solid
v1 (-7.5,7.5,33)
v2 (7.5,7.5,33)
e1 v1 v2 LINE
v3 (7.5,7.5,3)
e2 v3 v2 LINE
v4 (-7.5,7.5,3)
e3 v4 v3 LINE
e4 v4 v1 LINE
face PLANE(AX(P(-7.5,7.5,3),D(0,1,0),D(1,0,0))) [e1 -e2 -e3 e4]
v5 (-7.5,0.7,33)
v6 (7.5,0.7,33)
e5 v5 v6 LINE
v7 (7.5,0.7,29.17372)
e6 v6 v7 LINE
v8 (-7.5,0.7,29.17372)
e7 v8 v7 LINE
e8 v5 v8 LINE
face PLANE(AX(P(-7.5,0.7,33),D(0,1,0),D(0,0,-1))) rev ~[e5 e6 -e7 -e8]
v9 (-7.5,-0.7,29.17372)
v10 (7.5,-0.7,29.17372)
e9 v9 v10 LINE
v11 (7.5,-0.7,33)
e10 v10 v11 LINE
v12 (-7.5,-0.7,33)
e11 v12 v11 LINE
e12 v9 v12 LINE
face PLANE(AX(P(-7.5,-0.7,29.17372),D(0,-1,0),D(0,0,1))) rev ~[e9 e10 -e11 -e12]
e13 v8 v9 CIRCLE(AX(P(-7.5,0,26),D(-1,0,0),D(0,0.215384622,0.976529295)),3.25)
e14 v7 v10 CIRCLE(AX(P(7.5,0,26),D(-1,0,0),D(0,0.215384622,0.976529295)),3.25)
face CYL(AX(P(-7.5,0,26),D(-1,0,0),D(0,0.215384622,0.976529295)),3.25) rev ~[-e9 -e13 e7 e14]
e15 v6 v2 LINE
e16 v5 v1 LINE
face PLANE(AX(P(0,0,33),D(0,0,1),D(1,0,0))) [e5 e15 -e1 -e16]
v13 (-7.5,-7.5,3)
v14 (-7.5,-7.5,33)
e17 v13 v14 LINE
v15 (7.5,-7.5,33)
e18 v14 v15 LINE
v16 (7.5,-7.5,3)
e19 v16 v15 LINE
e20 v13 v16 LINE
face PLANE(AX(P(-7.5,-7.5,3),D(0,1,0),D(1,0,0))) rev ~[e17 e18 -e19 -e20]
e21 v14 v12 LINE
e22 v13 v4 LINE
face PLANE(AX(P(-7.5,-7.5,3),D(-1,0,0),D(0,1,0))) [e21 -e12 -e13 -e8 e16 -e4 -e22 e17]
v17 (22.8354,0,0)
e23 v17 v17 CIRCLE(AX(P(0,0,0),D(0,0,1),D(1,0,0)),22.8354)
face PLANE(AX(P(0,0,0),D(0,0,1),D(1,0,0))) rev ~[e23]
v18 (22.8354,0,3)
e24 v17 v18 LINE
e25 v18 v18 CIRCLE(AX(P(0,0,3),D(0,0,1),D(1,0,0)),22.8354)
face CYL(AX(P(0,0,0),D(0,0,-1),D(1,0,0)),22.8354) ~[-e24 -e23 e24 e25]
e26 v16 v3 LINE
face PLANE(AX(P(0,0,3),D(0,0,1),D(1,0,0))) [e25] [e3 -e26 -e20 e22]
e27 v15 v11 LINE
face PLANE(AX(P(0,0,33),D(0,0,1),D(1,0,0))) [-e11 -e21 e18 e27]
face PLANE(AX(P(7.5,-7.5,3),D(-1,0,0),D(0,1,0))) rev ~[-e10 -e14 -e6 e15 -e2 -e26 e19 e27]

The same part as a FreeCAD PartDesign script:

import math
import FreeCAD as App
import Part
import Sketcher
Q = App.Units.Quantity

doc = App.newDocument("Part")
params = doc.addObject("Spreadsheet::Sheet", "Params")
for row, (alias, value) in enumerate([
    ("pad1_length", "3 mm"),
    ("sketch2_width", "15 mm"),
    ("pad2_length", "30 mm"),
    ("sketch3_radius", "3.25 mm"),
    ("sketch3_width", "1.4 mm"),
    ("pocket1_length", "25 mm"),
], start=1):
    params.set(f"A{row}", alias)
    params.set(f"B{row}", "=" + value)
    params.setAlias(f"B{row}", alias)

body = doc.addObject("PartDesign::Body", "Body")

# Sketch on XY plane
sketch1 = body.newObject("Sketcher::SketchObject", "Sketch")
sketch1.AttachmentSupport = (doc.getObject("XY_Plane"), [""])
sketch1.MapMode = "FlatFace"
sketch1.addGeometry(Part.Circle(App.Vector(0, 0, 0), App.Vector(0, 0, 1), 23), False)
sketch1.addConstraint([
    Sketcher.Constraint("Coincident", 0, 3, -1, 1),
    Sketcher.Constraint("Diameter", 0, Q("45.6708 mm")),
])
pad1 = body.newObject("PartDesign::Pad", "Pad")
pad1.Profile = sketch1
pad1.setExpression("Length", "Params.pad1_length")

# Sketch on XY plane
sketch2 = body.newObject("Sketcher::SketchObject", "Sketch001")
sketch2.AttachmentSupport = (doc.getObject("XY_Plane"), [""])
sketch2.MapMode = "FlatFace"
sketch2.AttachmentOffset = App.Placement(App.Vector(0, 0, 3), App.Rotation())
sketch2.addGeometry([
    Part.LineSegment(App.Vector(-8, 8, 0), App.Vector(-8, -8, 0)),
    Part.LineSegment(App.Vector(-8, -8, 0), App.Vector(8, -8, 0)),
    Part.LineSegment(App.Vector(8, -8, 0), App.Vector(8, 8, 0)),
    Part.LineSegment(App.Vector(8, 8, 0), App.Vector(-8, 8, 0)),
], False)
sketch2.addConstraint([
    Sketcher.Constraint("Coincident", 0, 2, 1, 1),
    Sketcher.Constraint("Coincident", 1, 2, 2, 1),
    Sketcher.Constraint("Coincident", 2, 2, 3, 1),
    Sketcher.Constraint("Coincident", 3, 2, 0, 1),
    Sketcher.Constraint("Vertical", 0),
    Sketcher.Constraint("Horizontal", 1),
    Sketcher.Constraint("Vertical", 2),
    Sketcher.Constraint("Horizontal", 3),
    Sketcher.Constraint("Symmetric", 0, 2, 2, 2, -1, 1),
    Sketcher.Constraint("Equal", 3, 0),
    Sketcher.Constraint("DistanceX", 1, 1, 1, 2, Q("15 mm")),
])
sketch2.setExpression("Constraints[10]", "Params.sketch2_width")
pad2 = body.newObject("PartDesign::Pad", "Pad001")
pad2.Profile = sketch2
pad2.setExpression("Length", "Params.pad2_length")

# Sketch on YZ plane
sketch3 = body.newObject("Sketcher::SketchObject", "Sketch002")
sketch3.AttachmentSupport = (doc.getObject("YZ_Plane"), [""])
sketch3.MapMode = "FlatFace"
sketch3.AttachmentOffset = App.Placement(App.Vector(0, 0, -7.5), App.Rotation())
sketch3.addGeometry([
    Part.LineSegment(App.Vector(0.7, 33, 0), App.Vector(0.7, 29.2, 0)),
    Part.ArcOfCircle(Part.Circle(App.Vector(0, 26, 0), App.Vector(0, 0, 1), 3.2), math.radians(102), math.radians(438)),
    Part.LineSegment(App.Vector(-0.7, 29.2, 0), App.Vector(-0.7, 33, 0)),
    Part.LineSegment(App.Vector(-0.7, 33, 0), App.Vector(0.7, 33, 0)),
], False)
sketch3.addConstraint([
    Sketcher.Constraint("Coincident", 0, 2, 1, 2),
    Sketcher.Constraint("Coincident", 1, 1, 2, 1),
    Sketcher.Constraint("Coincident", 2, 2, 3, 1),
    Sketcher.Constraint("Coincident", 3, 2, 0, 1),
    Sketcher.Constraint("Vertical", 0),
    Sketcher.Constraint("Vertical", 2),
    Sketcher.Constraint("Horizontal", 3),
    Sketcher.Constraint("Symmetric", 0, 2, 1, 1, -2),
    Sketcher.Constraint("Radius", 1, Q("3.25 mm")),
    Sketcher.Constraint("DistanceX", 3, 1, 3, 2, Q("1.4 mm")),
    Sketcher.Constraint("DistanceY", -1, 1, 1, 3, Q("26 mm")),
    Sketcher.Constraint("DistanceY", -1, 1, 2, 2, Q("33 mm")),
])
sketch3.setExpression("Constraints[8]", "Params.sketch3_radius")
sketch3.setExpression("Constraints[9]", "Params.sketch3_width")
pocket1 = body.newObject("PartDesign::Pocket", "Pocket")
pocket1.Profile = sketch3
pocket1.setExpression("Length", "Params.pocket1_length")
pocket1.Reversed = True

doc.recompute()
